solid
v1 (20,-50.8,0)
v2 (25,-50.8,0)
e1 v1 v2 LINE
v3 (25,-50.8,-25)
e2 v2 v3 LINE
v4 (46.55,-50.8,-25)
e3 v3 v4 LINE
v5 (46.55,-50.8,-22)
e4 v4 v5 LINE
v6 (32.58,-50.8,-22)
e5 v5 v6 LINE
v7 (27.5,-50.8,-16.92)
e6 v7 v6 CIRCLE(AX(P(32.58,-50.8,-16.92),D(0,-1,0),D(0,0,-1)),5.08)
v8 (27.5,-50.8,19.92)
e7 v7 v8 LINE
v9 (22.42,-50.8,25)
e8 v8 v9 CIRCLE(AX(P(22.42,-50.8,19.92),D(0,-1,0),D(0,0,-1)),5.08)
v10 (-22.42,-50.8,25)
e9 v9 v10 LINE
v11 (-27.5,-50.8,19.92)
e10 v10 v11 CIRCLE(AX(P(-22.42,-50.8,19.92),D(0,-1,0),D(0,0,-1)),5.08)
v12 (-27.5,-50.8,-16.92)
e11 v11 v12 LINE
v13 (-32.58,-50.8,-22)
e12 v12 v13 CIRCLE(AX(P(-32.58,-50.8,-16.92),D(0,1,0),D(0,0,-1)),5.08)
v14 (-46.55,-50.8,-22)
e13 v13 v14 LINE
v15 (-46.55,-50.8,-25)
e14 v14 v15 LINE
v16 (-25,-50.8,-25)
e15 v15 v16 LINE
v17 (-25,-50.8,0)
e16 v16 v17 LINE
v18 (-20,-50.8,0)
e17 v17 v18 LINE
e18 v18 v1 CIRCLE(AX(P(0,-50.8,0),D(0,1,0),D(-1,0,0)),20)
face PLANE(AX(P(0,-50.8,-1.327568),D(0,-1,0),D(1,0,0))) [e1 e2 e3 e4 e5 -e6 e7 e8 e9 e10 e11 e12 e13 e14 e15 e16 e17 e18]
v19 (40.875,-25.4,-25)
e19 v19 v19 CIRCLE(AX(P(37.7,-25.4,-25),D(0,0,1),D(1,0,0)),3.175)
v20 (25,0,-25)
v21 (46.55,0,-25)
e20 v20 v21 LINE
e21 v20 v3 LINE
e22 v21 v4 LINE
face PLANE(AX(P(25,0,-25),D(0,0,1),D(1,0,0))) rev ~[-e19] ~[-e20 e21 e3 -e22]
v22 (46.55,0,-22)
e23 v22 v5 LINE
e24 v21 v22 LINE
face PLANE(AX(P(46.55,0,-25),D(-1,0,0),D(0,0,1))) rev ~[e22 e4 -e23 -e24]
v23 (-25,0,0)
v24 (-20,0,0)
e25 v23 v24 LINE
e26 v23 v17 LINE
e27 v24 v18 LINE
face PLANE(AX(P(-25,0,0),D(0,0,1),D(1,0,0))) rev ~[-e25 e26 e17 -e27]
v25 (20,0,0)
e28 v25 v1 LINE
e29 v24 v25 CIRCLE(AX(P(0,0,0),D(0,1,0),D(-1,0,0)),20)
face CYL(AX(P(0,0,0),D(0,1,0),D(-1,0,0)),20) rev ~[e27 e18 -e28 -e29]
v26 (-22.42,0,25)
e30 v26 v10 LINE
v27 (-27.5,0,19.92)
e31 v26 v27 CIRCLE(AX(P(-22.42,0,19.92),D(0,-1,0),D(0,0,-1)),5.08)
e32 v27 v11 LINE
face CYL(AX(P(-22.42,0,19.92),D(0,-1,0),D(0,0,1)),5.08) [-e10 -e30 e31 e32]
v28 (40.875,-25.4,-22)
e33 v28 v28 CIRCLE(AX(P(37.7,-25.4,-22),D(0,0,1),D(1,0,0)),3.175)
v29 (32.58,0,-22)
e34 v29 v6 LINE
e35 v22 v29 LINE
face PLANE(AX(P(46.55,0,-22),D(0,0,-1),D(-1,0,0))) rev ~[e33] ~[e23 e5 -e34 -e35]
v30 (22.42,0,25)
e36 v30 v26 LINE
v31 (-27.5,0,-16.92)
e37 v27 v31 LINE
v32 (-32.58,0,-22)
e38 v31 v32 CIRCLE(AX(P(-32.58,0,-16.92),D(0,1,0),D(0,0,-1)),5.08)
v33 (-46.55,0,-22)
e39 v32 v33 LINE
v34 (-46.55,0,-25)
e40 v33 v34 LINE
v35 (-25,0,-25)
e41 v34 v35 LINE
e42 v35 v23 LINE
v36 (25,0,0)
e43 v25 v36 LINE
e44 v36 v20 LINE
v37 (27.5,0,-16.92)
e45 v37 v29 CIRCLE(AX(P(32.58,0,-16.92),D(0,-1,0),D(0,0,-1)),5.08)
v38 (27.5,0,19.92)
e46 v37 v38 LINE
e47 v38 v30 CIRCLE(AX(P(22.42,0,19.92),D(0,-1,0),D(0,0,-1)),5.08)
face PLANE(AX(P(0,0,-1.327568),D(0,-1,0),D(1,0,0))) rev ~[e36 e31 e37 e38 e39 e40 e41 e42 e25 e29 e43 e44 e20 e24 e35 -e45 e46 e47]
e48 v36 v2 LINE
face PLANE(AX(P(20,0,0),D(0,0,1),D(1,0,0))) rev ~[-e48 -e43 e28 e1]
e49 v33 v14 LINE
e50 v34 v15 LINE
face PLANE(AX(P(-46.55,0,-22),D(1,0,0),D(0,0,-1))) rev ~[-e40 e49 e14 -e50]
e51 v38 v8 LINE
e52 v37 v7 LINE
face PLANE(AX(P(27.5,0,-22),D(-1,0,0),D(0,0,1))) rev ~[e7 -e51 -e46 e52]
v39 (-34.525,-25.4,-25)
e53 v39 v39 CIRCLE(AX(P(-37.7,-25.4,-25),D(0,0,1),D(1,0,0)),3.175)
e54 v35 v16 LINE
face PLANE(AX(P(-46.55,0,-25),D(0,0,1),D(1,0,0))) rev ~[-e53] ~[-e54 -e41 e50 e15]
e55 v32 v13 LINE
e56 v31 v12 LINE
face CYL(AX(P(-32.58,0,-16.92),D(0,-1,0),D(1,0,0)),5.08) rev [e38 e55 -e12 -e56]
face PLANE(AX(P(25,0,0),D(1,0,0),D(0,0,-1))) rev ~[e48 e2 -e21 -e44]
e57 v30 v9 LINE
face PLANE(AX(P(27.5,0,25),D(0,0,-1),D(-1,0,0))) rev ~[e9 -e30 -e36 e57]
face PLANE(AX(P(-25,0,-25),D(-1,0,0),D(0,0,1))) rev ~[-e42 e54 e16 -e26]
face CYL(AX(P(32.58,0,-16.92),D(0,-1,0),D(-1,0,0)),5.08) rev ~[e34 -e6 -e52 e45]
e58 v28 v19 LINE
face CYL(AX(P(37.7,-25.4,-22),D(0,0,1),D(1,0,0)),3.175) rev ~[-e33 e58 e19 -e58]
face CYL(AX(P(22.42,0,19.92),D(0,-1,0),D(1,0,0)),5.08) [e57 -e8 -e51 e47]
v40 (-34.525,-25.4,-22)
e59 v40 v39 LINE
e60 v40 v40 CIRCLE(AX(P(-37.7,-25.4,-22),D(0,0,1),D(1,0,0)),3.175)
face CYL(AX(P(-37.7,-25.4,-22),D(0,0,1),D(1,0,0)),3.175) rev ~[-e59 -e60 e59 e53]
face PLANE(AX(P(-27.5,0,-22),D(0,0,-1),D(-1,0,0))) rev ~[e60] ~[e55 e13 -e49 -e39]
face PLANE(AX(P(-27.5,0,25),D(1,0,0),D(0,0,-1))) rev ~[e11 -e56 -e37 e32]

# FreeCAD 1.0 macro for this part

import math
import FreeCAD as App
import Part
import Sketcher
from FreeCAD import Vector
Q = App.Units.Quantity


def edges_at(feature, points):
    """Names of the edges that pass closest to the given points."""
    edges = feature.Shape.Edges
    near = lambda p: min(range(len(edges)), key=lambda i: edges[i].distToShape(Part.Vertex(*p))[0])
    return sorted({f"Edge{near(p) + 1}" for p in points})

doc = App.newDocument("Part")
body = doc.addObject("PartDesign::Body", "Body")

sketch1 = doc.addObject("Sketcher::SketchObject", "Sketch")
body.addObject(sketch1)
sketch1.AttachmentSupport = (doc.XZ_Plane, [""])
sketch1.MapMode = "FlatFace"
sketch1.addGeometry(Part.LineSegment(Vector(-25, -25, 0), Vector(-25, 0, 0)), False)
sketch1.addGeometry(Part.LineSegment(Vector(-25, 0, 0), Vector(-20, 0, 0)), False)
sketch1.addGeometry(Part.ArcOfCircle(Part.Circle(Vector(0, 0, 0), Vector(0, 0, 1), 20), math.radians(0), math.radians(180)), False)
sketch1.addGeometry(Part.LineSegment(Vector(20, 0, 0), Vector(25, 0, 0)), False)
sketch1.addGeometry(Part.LineSegment(Vector(25, 0, 0), Vector(25, -25, 0)), False)
sketch1.addGeometry(Part.LineSegment(Vector(25, -25, 0), Vector(46.5, -25, 0)), False)
sketch1.addGeometry(Part.LineSegment(Vector(46.5, -25, 0), Vector(46.5, -22, 0)), False)
sketch1.addGeometry(Part.LineSegment(Vector(46.5, -22, 0), Vector(27.5, -22, 0)), False)
sketch1.addGeometry(Part.LineSegment(Vector(27.5, -22, 0), Vector(27.5, 25, 0)), False)
sketch1.addGeometry(Part.LineSegment(Vector(27.5, 25, 0), Vector(-27.5, 25, 0)), False)
sketch1.addGeometry(Part.LineSegment(Vector(-27.5, 25, 0), Vector(-27.5, -22, 0)), False)
sketch1.addGeometry(Part.LineSegment(Vector(-27.5, -22, 0), Vector(-46.5, -22, 0)), False)
sketch1.addGeometry(Part.LineSegment(Vector(-46.5, -22, 0), Vector(-46.5, -25, 0)), False)
sketch1.addGeometry(Part.LineSegment(Vector(-46.5, -25, 0), Vector(-25, -25, 0)), False)
sketch1.addConstraint(Sketcher.Constraint("Coincident", 0, 2, 1, 1))
sketch1.addConstraint(Sketcher.Constraint("Coincident", 1, 2, 2, 2))
sketch1.addConstraint(Sketcher.Constraint("Coincident", 2, 1, 3, 1))
sketch1.addConstraint(Sketcher.Constraint("Coincident", 3, 2, 4, 1))
sketch1.addConstraint(Sketcher.Constraint("Coincident", 4, 2, 5, 1))
sketch1.addConstraint(Sketcher.Constraint("Coincident", 5, 2, 6, 1))
sketch1.addConstraint(Sketcher.Constraint("Coincident", 6, 2, 7, 1))
sketch1.addConstraint(Sketcher.Constraint("Coincident", 7, 2, 8, 1))
sketch1.addConstraint(Sketcher.Constraint("Coincident", 8, 2, 9, 1))
sketch1.addConstraint(Sketcher.Constraint("Coincident", 9, 2, 10, 1))
sketch1.addConstraint(Sketcher.Constraint("Coincident", 10, 2, 11, 1))
sketch1.addConstraint(Sketcher.Constraint("Coincident", 11, 2, 12, 1))
sketch1.addConstraint(Sketcher.Constraint("Coincident", 12, 2, 13, 1))
sketch1.addConstraint(Sketcher.Constraint("Coincident", 13, 2, 0, 1))
sketch1.addConstraint(Sketcher.Constraint("Vertical", 0))
sketch1.addConstraint(Sketcher.Constraint("Horizontal", 1))
sketch1.addConstraint(Sketcher.Constraint("Horizontal", 3))
sketch1.addConstraint(Sketcher.Constraint("Vertical", 4))
sketch1.addConstraint(Sketcher.Constraint("Horizontal", 5))
sketch1.addConstraint(Sketcher.Constraint("Vertical", 6))
sketch1.addConstraint(Sketcher.Constraint("Horizontal", 7))
sketch1.addConstraint(Sketcher.Constraint("Vertical", 8))
sketch1.addConstraint(Sketcher.Constraint("Horizontal", 9))
sketch1.addConstraint(Sketcher.Constraint("Vertical", 10))
sketch1.addConstraint(Sketcher.Constraint("Horizontal", 11))
sketch1.addConstraint(Sketcher.Constraint("Vertical", 12))
sketch1.addConstraint(Sketcher.Constraint("Horizontal", 13))
sketch1.addConstraint(Sketcher.Constraint("Coincident", 2, 3, -1, 1))
sketch1.addConstraint(Sketcher.Constraint("Symmetric", 0, 2, 3, 2, -1, 1))
sketch1.addConstraint(Sketcher.Constraint("Symmetric", 7, 2, 10, 2, -2))
sketch1.addConstraint(Sketcher.Constraint("Symmetric", 5, 2, 12, 2, -2))
sketch1.addConstraint(Sketcher.Constraint("PointOnObject", 0, 2, -1))
sketch1.addConstraint(Sketcher.Constraint("Radius", 2, Q("20 mm")))
sketch1.addConstraint(Sketcher.Constraint("DistanceX", 1, 1, 1, 2, Q("5 mm")))
sketch1.addConstraint(Sketcher.Constraint("DistanceX", 9, 2, 9, 1, Q("55 mm")))
sketch1.addConstraint(Sketcher.Constraint("DistanceY", 0, 1, 0, 2, Q("25 mm")))
sketch1.addConstraint(Sketcher.Constraint("DistanceY", 6, 1, 6, 2, Q("3 mm")))
sketch1.addConstraint(Sketcher.Constraint("DistanceY", 8, 1, 8, 2, Q("47 mm")))
sketch1.addConstraint(Sketcher.Constraint("DistanceX", 5, 1, 5, 2, Q("21.55 mm")))
pad1 = doc.addObject("PartDesign::Pad", "Pad")
body.addObject(pad1)
pad1.Profile = sketch1
pad1.Length = 50.8
doc.recompute()

fillet = doc.addObject("PartDesign::Fillet", "Fillet")
body.addObject(fillet)
fillet.Base = (pad1, edges_at(pad1, [(-27.5, -25.4, 25), (27.5, -25.4, 25)]))
fillet.Radius = 5.08
doc.recompute()

fillet2 = doc.addObject("PartDesign::Fillet", "Fillet001")
body.addObject(fillet2)
fillet2.Base = (fillet, edges_at(fillet, [(-27.5, -25.4, -22), (27.5, -25.4, -22)]))
fillet2.Radius = 5.08

sketch2 = doc.addObject("Sketcher::SketchObject", "Sketch001")
body.addObject(sketch2)
sketch2.AttachmentSupport = (doc.XY_Plane, [""])
sketch2.MapMode = "FlatFace"
sketch2.AttachmentOffset = App.Placement(Vector(0, 0, -22), App.Rotation())
sketch2.addGeometry(Part.Circle(Vector(-37.7, -25.4, 0), Vector(0, 0, 1), 3.2), False)
sketch2.addGeometry(Part.Circle(Vector(37.7, -25.4, 0), Vector(0, 0, 1), 3.2), False)
sketch2.addConstraint(Sketcher.Constraint("Equal", 0, 1))
sketch2.addConstraint(Sketcher.Constraint("Symmetric", 0, 3, 1, 3, -2))
sketch2.addConstraint(Sketcher.Constraint("Diameter", 0, Q("6.35 mm")))
sketch2.addConstraint(Sketcher.Constraint("DistanceX", 0, 3, -1, 1, Q("37.7 mm")))
sketch2.addConstraint(Sketcher.Constraint("DistanceY", 0, 3, -1, 1, Q("25.4 mm")))
pocket1 = doc.addObject("PartDesign::Pocket", "Pocket")
body.addObject(pocket1)
pocket1.Profile = sketch2
pocket1.Length = 25.4

doc.recompute()
